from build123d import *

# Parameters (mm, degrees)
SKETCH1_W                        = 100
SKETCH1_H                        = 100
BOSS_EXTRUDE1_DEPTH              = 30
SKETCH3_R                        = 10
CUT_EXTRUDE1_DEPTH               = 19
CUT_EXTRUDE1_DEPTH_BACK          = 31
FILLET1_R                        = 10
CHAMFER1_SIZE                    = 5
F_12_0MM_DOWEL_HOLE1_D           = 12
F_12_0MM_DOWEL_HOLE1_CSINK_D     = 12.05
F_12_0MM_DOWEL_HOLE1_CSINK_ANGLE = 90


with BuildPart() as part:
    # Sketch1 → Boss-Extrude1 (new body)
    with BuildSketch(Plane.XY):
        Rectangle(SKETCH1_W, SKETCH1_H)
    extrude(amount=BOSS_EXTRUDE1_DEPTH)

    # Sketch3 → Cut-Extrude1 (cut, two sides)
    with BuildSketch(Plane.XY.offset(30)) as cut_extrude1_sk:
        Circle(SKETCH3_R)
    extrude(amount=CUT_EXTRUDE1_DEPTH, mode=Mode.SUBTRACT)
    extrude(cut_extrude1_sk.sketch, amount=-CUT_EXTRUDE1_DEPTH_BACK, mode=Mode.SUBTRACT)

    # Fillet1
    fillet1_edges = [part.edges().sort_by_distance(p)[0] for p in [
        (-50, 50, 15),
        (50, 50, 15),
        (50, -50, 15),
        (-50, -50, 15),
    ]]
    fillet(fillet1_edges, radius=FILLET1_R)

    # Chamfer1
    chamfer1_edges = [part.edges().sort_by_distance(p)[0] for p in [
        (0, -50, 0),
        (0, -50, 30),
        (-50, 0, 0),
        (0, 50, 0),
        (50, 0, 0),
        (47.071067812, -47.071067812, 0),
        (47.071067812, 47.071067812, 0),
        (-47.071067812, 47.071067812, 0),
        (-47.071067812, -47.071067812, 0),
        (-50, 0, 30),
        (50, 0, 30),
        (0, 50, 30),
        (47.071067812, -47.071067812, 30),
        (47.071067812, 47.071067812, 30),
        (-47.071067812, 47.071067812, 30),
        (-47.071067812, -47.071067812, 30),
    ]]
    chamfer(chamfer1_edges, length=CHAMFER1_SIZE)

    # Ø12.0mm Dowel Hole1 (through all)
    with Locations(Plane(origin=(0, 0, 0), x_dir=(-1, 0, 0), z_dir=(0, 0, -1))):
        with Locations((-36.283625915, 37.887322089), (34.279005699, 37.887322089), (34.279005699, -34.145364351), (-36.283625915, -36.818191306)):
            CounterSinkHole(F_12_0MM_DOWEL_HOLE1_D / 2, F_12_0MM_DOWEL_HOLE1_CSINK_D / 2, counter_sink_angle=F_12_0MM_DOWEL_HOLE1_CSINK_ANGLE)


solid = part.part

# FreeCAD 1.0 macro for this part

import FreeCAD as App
import Part
import Sketcher
Q = App.Units.Quantity


def edges_at(feature, points):
    """Names of the edges that pass closest to the given points."""
    edges = feature.Shape.Edges
    near = lambda p: min(range(len(edges)), key=lambda i: edges[i].distToShape(Part.Vertex(*p))[0])
    return sorted({f"Edge{near(p) + 1}" for p in points})


def add_polygon(sketch, points):
    """Adds a closed chain of lines whose ends are joined by coincident constraints."""
    first, n = sketch.GeometryCount, len(points)
    for a, b in zip(points, points[1:] + points[:1]):
        sketch.addGeometry(Part.LineSegment(App.Vector(*a, 0), App.Vector(*b, 0)), False)
    for i in range(n):
        sketch.addConstraint(Sketcher.Constraint("Coincident", first + i, 2, first + (i + 1) % n, 1))

doc = App.newDocument("Part")
body = doc.addObject("PartDesign::Body", "Body")

sketch1 = body.newObject("Sketcher::SketchObject", "Sketch")
sketch1.AttachmentSupport = (doc.getObject("XY_Plane"), [""])
sketch1.MapMode = "FlatFace"
add_polygon(sketch1, [(-50, 50), (-50, -50), (50, -50), (50, 50)])
sketch1.addConstraint([
    Sketcher.Constraint("Vertical", 0),
    Sketcher.Constraint("Horizontal", 1),
    Sketcher.Constraint("Vertical", 2),
    Sketcher.Constraint("Horizontal", 3),
    Sketcher.Constraint("Symmetric", 0, 2, 2, 2, -1, 1),
    Sketcher.Constraint("Equal", 3, 0),
    Sketcher.Constraint("DistanceX", 1, 1, 1, 2, Q("100 mm")),
])
pad1 = body.newObject("PartDesign::Pad", "Pad")
pad1.Profile = sketch1
pad1.Length = 30

sketch2 = body.newObject("Sketcher::SketchObject", "Sketch001")
sketch2.AttachmentSupport = (doc.getObject("XY_Plane"), [""])
sketch2.MapMode = "FlatFace"
sketch2.AttachmentOffset = App.Placement(App.Vector(0, 0, 30), App.Rotation())
sketch2.addGeometry(Part.Circle(App.Vector(0, 0, 0), App.Vector(0, 0, 1), 10), False)
sketch2.addConstraint([
    Sketcher.Constraint("Coincident", 0, 3, -1, 1),
    Sketcher.Constraint("Diameter", 0, Q("20 mm")),
])
pocket1 = body.newObject("PartDesign::Pocket", "Pocket")
pocket1.Profile = sketch2
pocket1.Type = "ThroughAll"
pocket1.Midplane = True
doc.recompute()

fillet = body.newObject("PartDesign::Fillet", "Fillet")
fillet.Base = (pocket1, edges_at(pocket1, [
    (-50, 50, 15),
    (50, 50, 15),
    (50, -50, 15),
    (-50, -50, 15),
]))
fillet.Radius = 10
doc.recompute()

chamfer = body.newObject("PartDesign::Chamfer", "Chamfer")
chamfer.Base = (fillet, edges_at(fillet, [
    (0, -50, 0),
    (0, -50, 30),
    (-50, 0, 0),
    (0, 50, 0),
    (50, 0, 0),
    (47.071, -47.071, 0),
    (47.071, 47.071, 0),
    (-47.071, 47.071, 0),
    (-47.071, -47.071, 0),
    (-50, 0, 30),
    (50, 0, 30),
    (0, 50, 30),
    (47.071, -47.071, 30),
    (47.071, 47.071, 30),
    (-47.071, 47.071, 30),
    (-47.071, -47.071, 30),
]))
chamfer.Size = 5

sketch3 = body.newObject("Sketcher::SketchObject", "Sketch002")
sketch3.AttachmentSupport = (doc.getObject("XY_Plane"), [""])
sketch3.MapMode = "FlatFace"
sketch3.addGeometry([
    Part.Circle(App.Vector(36, 38, 0), App.Vector(0, 0, 1), 6),
    Part.Circle(App.Vector(-34, 38, 0), App.Vector(0, 0, 1), 6),
    Part.Circle(App.Vector(-34, -34, 0), App.Vector(0, 0, 1), 6),
    Part.Circle(App.Vector(36, -37, 0), App.Vector(0, 0, 1), 6),
], False)
sketch3.addConstraint([
    Sketcher.Constraint("Equal", 0, 1),
    Sketcher.Constraint("Equal", 1, 2),
    Sketcher.Constraint("Equal", 2, 3),
    Sketcher.Constraint("Horizontal", 0, 3, 1, 3),
    Sketcher.Constraint("Vertical", 1, 3, 2, 3),
    Sketcher.Constraint("Vertical", 0, 3, 3, 3),
    Sketcher.Constraint("Diameter", 0, Q("12 mm")),
    Sketcher.Constraint("DistanceY", 3, 3, -1, 1, Q("36.818191 mm")),
    Sketcher.Constraint("DistanceX", 1, 3, 0, 3, Q("70.562632 mm")),
    Sketcher.Constraint("DistanceX", -1, 1, 0, 3, Q("36.283626 mm")),
    Sketcher.Constraint("DistanceY", -1, 1, 0, 3, Q("37.887322 mm")),
    Sketcher.Constraint("DistanceY", 2, 3, -1, 1, Q("34.145364 mm")),
])
doc.recompute()
hole = body.newObject("PartDesign::Hole", "Hole")
hole.Profile = sketch3
hole.ThreadType = "None"
hole.Diameter = 12
hole.DepthType = "ThroughAll"
hole.HoleCutType = "Countersink"
hole.HoleCutDiameter = 12.05
hole.HoleCutCountersinkAngle = 90
hole.Reversed = True

doc.recompute()
